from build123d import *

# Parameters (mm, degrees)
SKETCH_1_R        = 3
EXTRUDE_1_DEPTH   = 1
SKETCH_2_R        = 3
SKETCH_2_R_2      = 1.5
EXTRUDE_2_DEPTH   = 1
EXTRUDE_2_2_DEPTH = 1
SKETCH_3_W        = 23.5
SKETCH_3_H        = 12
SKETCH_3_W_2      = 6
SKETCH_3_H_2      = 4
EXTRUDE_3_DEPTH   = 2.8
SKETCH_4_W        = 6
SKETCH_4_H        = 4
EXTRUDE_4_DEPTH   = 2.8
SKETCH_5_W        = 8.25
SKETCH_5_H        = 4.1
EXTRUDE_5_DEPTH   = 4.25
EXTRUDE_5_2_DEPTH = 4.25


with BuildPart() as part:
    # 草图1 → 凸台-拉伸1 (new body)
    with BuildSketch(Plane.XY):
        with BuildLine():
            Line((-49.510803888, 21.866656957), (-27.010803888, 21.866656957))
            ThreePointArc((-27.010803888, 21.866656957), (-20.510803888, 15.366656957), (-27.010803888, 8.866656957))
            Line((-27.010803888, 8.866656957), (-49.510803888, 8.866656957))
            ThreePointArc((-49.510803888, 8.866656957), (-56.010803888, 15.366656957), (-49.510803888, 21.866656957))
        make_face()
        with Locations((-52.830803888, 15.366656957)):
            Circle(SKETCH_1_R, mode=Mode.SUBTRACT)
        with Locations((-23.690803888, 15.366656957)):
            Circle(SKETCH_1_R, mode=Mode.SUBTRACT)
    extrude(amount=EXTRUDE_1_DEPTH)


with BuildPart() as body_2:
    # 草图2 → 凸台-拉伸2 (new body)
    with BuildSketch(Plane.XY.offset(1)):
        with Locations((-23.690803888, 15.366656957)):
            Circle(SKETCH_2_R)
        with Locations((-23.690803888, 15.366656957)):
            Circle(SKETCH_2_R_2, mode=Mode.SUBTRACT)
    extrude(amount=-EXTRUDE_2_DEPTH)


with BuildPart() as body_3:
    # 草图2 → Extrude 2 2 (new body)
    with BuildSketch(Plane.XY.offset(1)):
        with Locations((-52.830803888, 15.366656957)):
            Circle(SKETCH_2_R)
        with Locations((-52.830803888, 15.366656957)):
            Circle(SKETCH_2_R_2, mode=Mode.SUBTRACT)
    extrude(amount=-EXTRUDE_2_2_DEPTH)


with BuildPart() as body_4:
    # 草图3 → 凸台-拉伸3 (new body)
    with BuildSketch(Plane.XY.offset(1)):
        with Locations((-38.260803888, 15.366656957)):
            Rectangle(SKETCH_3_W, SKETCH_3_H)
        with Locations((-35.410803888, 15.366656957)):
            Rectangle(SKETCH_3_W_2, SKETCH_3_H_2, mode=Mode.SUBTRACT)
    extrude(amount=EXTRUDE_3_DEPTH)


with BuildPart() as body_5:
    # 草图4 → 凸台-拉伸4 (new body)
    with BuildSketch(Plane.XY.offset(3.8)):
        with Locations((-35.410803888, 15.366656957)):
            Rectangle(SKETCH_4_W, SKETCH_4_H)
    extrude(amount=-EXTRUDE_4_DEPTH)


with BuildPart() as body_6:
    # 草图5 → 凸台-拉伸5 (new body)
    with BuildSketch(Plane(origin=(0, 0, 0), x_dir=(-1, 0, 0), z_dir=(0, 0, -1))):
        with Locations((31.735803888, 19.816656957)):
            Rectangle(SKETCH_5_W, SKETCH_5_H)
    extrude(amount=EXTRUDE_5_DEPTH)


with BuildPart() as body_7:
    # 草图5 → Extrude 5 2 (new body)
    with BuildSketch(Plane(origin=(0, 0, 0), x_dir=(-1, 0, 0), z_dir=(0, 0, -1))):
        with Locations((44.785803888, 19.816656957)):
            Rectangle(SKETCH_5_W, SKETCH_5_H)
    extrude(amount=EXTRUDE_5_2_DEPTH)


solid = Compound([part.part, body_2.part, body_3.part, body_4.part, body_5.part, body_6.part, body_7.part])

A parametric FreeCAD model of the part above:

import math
import FreeCAD as App
import Part
import Sketcher
from FreeCAD import Vector

doc = App.newDocument("Part")
body = doc.addObject("PartDesign::Body", "Body")

# Sketch on XY plane
sketch1 = body.newObject("Sketcher::SketchObject", "Sketch")
sketch1.AttachmentSupport = (doc.getObject("XY_Plane"), [""])
sketch1.MapMode = "FlatFace"
sketch1.addGeometry(Part.LineSegment(Vector(-27, 21.9, 0), Vector(-49.5, 21.9, 0)), False)
sketch1.addGeometry(Part.ArcOfCircle(Part.Circle(Vector(-49.5, 15.4, 0), Vector(0, 0, 1), 6.5), math.radians(90), math.radians(270)), False)
sketch1.addGeometry(Part.LineSegment(Vector(-49.5, 8.9, 0), Vector(-27, 8.9, 0)), False)
sketch1.addGeometry(Part.ArcOfCircle(Part.Circle(Vector(-27, 15.4, 0), Vector(0, 0, 1), 6.5), math.radians(-90), math.radians(90)), False)
sketch1.addGeometry(Part.Circle(Vector(-23.7, 15.4, 0), Vector(0, 0, 1), 3), False)
sketch1.addGeometry(Part.Circle(Vector(-52.8, 15.4, 0), Vector(0, 0, 1), 3), False)
sketch1.addConstraint(Sketcher.Constraint("Tangent", 0, 2, 1, 1))
sketch1.addConstraint(Sketcher.Constraint("Tangent", 1, 2, 2, 1))
sketch1.addConstraint(Sketcher.Constraint("Tangent", 2, 2, 3, 1))
sketch1.addConstraint(Sketcher.Constraint("Tangent", 3, 2, 0, 1))
sketch1.addConstraint(Sketcher.Constraint("Horizontal", 0))
sketch1.addConstraint(Sketcher.Constraint("Horizontal", 2))
sketch1.addConstraint(Sketcher.Constraint("Equal", 4, 5))
sketch1.addConstraint(Sketcher.Constraint("Horizontal", 3, 3, 4, 3))
sketch1.addConstraint(Sketcher.Constraint("Horizontal", 4, 3, 5, 3))
sketch1.addConstraint(Sketcher.Constraint("Diameter", 4, 6.0))
sketch1.addConstraint(Sketcher.Constraint("Radius", 1, 6.5))
sketch1.addConstraint(Sketcher.Constraint("DistanceX", 0, 2, 0, 1, 22.5))
sketch1.addConstraint(Sketcher.Constraint("DistanceX", 3, 3, 4, 3, 3.32))
sketch1.addConstraint(Sketcher.Constraint("DistanceX", 5, 3, 1, 3, 3.32))
sketch1.addConstraint(Sketcher.Constraint("DistanceX", 1, 3, -1, 1, 49.510804))
sketch1.addConstraint(Sketcher.Constraint("DistanceY", -1, 1, 1, 3, 15.366657))
pad1 = body.newObject("PartDesign::Pad", "Pad")
pad1.Profile = sketch1
pad1.Length = 1
body2 = doc.addObject("PartDesign::Body", "Body001")

# Sketch on XY plane
sketch2 = body2.newObject("Sketcher::SketchObject", "Sketch001")
sketch2.AttachmentSupport = (doc.getObject("XY_Plane001"), [""])
sketch2.MapMode = "FlatFace"
sketch2.AttachmentOffset = App.Placement(Vector(0, 0, 1), App.Rotation())
sketch2.addGeometry(Part.Circle(Vector(-23.7, 15.4, 0), Vector(0, 0, 1), 3), False)
sketch2.addGeometry(Part.Circle(Vector(-23.7, 15.4, 0), Vector(0, 0, 1), 1.5), False)
sketch2.addConstraint(Sketcher.Constraint("Coincident", 1, 3, 0, 3))
sketch2.addConstraint(Sketcher.Constraint("Diameter", 0, 6.0))
sketch2.addConstraint(Sketcher.Constraint("Diameter", 1, 3.0))
sketch2.addConstraint(Sketcher.Constraint("DistanceX", 0, 3, -1, 1, 23.690804))
sketch2.addConstraint(Sketcher.Constraint("DistanceY", -1, 1, 0, 3, 15.366657))
pad2 = body2.newObject("PartDesign::Pad", "Pad001")
pad2.Profile = sketch2
pad2.Length = 1
pad2.Reversed = True
body3 = doc.addObject("PartDesign::Body", "Body002")

# Sketch on XY plane
sketch3 = body3.newObject("Sketcher::SketchObject", "Sketch002")
sketch3.AttachmentSupport = (doc.getObject("XY_Plane002"), [""])
sketch3.MapMode = "FlatFace"
sketch3.AttachmentOffset = App.Placement(Vector(0, 0, 1), App.Rotation())
sketch3.addGeometry(Part.Circle(Vector(-52.8, 15.4, 0), Vector(0, 0, 1), 3), False)
sketch3.addGeometry(Part.Circle(Vector(-52.8, 15.4, 0), Vector(0, 0, 1), 1.5), False)
sketch3.addConstraint(Sketcher.Constraint("Coincident", 1, 3, 0, 3))
sketch3.addConstraint(Sketcher.Constraint("Diameter", 0, 6.0))
sketch3.addConstraint(Sketcher.Constraint("Diameter", 1, 3.0))
sketch3.addConstraint(Sketcher.Constraint("DistanceX", 0, 3, -1, 1, 52.830804))
sketch3.addConstraint(Sketcher.Constraint("DistanceY", -1, 1, 0, 3, 15.366657))
pad3 = body3.newObject("PartDesign::Pad", "Pad002")
pad3.Profile = sketch3
pad3.Length = 1
pad3.Reversed = True
body4 = doc.addObject("PartDesign::Body", "Body003")

# Sketch on XY plane
sketch4 = body4.newObject("Sketcher::SketchObject", "Sketch003")
sketch4.AttachmentSupport = (doc.getObject("XY_Plane003"), [""])
sketch4.MapMode = "FlatFace"
sketch4.AttachmentOffset = App.Placement(Vector(0, 0, 1), App.Rotation())
sketch4.addGeometry(Part.LineSegment(Vector(-50, 21.4, 0), Vector(-50, 9.4, 0)), False)
sketch4.addGeometry(Part.LineSegment(Vector(-50, 9.4, 0), Vector(-26.5, 9.4, 0)), False)
sketch4.addGeometry(Part.LineSegment(Vector(-26.5, 9.4, 0), Vector(-26.5, 21.4, 0)), False)
sketch4.addGeometry(Part.LineSegment(Vector(-26.5, 21.4, 0), Vector(-50, 21.4, 0)), False)
sketch4.addGeometry(Part.LineSegment(Vector(-32.4, 13.4, 0), Vector(-38.4, 13.4, 0)), False)
sketch4.addGeometry(Part.LineSegment(Vector(-38.4, 13.4, 0), Vector(-38.4, 17.4, 0)), False)
sketch4.addGeometry(Part.LineSegment(Vector(-38.4, 17.4, 0), Vector(-32.4, 17.4, 0)), False)
sketch4.addGeometry(Part.LineSegment(Vector(-32.4, 17.4, 0), Vector(-32.4, 13.4, 0)), False)
sketch4.addConstraint(Sketcher.Constraint("Coincident", 0, 2, 1, 1))
sketch4.addConstraint(Sketcher.Constraint("Coincident", 1, 2, 2, 1))
sketch4.addConstraint(Sketcher.Constraint("Coincident", 2, 2, 3, 1))
sketch4.addConstraint(Sketcher.Constraint("Coincident", 3, 2, 0, 1))
sketch4.addConstraint(Sketcher.Constraint("Coincident", 4, 2, 5, 1))
sketch4.addConstraint(Sketcher.Constraint("Coincident", 5, 2, 6, 1))
sketch4.addConstraint(Sketcher.Constraint("Coincident", 6, 2, 7, 1))
sketch4.addConstraint(Sketcher.Constraint("Coincident", 7, 2, 4, 1))
sketch4.addConstraint(Sketcher.Constraint("Vertical", 0))
sketch4.addConstraint(Sketcher.Constraint("Horizontal", 1))
sketch4.addConstraint(Sketcher.Constraint("Vertical", 2))
sketch4.addConstraint(Sketcher.Constraint("Horizontal", 3))
sketch4.addConstraint(Sketcher.Constraint("Horizontal", 4))
sketch4.addConstraint(Sketcher.Constraint("Vertical", 5))
sketch4.addConstraint(Sketcher.Constraint("Horizontal", 6))
sketch4.addConstraint(Sketcher.Constraint("Vertical", 7))
sketch4.addConstraint(Sketcher.Constraint("DistanceX", 4, 2, 4, 1, 6.0))
sketch4.addConstraint(Sketcher.Constraint("DistanceY", 0, 2, 0, 1, 12.0))
sketch4.addConstraint(Sketcher.Constraint("DistanceY", 5, 1, 5, 2, 4.0))
sketch4.addConstraint(Sketcher.Constraint("DistanceX", 1, 1, 1, 2, 23.5))
sketch4.addConstraint(Sketcher.Constraint("DistanceY", 0, 2, 4, 2, 4.0))
sketch4.addConstraint(Sketcher.Constraint("DistanceX", 0, 2, 4, 2, 11.6))
sketch4.addConstraint(Sketcher.Constraint("DistanceX", 0, 2, -1, 1, 50.010804))
sketch4.addConstraint(Sketcher.Constraint("DistanceY", -1, 1, 0, 2, 9.366657))
pad4 = body4.newObject("PartDesign::Pad", "Pad003")
pad4.Profile = sketch4
pad4.Length = 2.8
body5 = doc.addObject("PartDesign::Body", "Body004")

# Sketch on XY plane
sketch5 = body5.newObject("Sketcher::SketchObject", "Sketch004")
sketch5.AttachmentSupport = (doc.getObject("XY_Plane004"), [""])
sketch5.MapMode = "FlatFace"
sketch5.AttachmentOffset = App.Placement(Vector(0, 0, 3.8), App.Rotation())
sketch5.addGeometry(Part.LineSegment(Vector(-38.4, 17.4, 0), Vector(-38.4, 13.4, 0)), False)
sketch5.addGeometry(Part.LineSegment(Vector(-38.4, 13.4, 0), Vector(-32.4, 13.4, 0)), False)
sketch5.addGeometry(Part.LineSegment(Vector(-32.4, 13.4, 0), Vector(-32.4, 17.4, 0)), False)
sketch5.addGeometry(Part.LineSegment(Vector(-32.4, 17.4, 0), Vector(-38.4, 17.4, 0)), False)
sketch5.addConstraint(Sketcher.Constraint("Coincident", 0, 2, 1, 1))
sketch5.addConstraint(Sketcher.Constraint("Coincident", 1, 2, 2, 1))
sketch5.addConstraint(Sketcher.Constraint("Coincident", 2, 2, 3, 1))
sketch5.addConstraint(Sketcher.Constraint("Coincident", 3, 2, 0, 1))
sketch5.addConstraint(Sketcher.Constraint("Vertical", 0))
sketch5.addConstraint(Sketcher.Constraint("Horizontal", 1))
sketch5.addConstraint(Sketcher.Constraint("Vertical", 2))
sketch5.addConstraint(Sketcher.Constraint("Horizontal", 3))
sketch5.addConstraint(Sketcher.Constraint("DistanceX", 1, 1, 1, 2, 6.0))
sketch5.addConstraint(Sketcher.Constraint("DistanceY", 0, 2, 0, 1, 4.0))
sketch5.addConstraint(Sketcher.Constraint("DistanceX", 0, 2, -1, 1, 38.410804))
sketch5.addConstraint(Sketcher.Constraint("DistanceY", -1, 1, 0, 2, 13.366657))
pad5 = body5.newObject("PartDesign::Pad", "Pad004")
pad5.Profile = sketch5
pad5.Length = 2.8
pad5.Reversed = True
body6 = doc.addObject("PartDesign::Body", "Body005")

# Sketch on XY plane
sketch6 = body6.newObject("Sketcher::SketchObject", "Sketch005")
sketch6.AttachmentSupport = (doc.getObject("XY_Plane005"), [""])
sketch6.MapMode = "FlatFace"
sketch6.addGeometry(Part.LineSegment(Vector(-27.6, 21.9, 0), Vector(-27.6, 17.8, 0)), False)
sketch6.addGeometry(Part.LineSegment(Vector(-27.6, 17.8, 0), Vector(-35.9, 17.8, 0)), False)
sketch6.addGeometry(Part.LineSegment(Vector(-35.9, 17.8, 0), Vector(-35.9, 21.9, 0)), False)
sketch6.addGeometry(Part.LineSegment(Vector(-35.9, 21.9, 0), Vector(-27.6, 21.9, 0)), False)
sketch6.addConstraint(Sketcher.Constraint("Coincident", 0, 2, 1, 1))
sketch6.addConstraint(Sketcher.Constraint("Coincident", 1, 2, 2, 1))
sketch6.addConstraint(Sketcher.Constraint("Coincident", 2, 2, 3, 1))
sketch6.addConstraint(Sketcher.Constraint("Coincident", 3, 2, 0, 1))
sketch6.addConstraint(Sketcher.Constraint("Vertical", 0))
sketch6.addConstraint(Sketcher.Constraint("Horizontal", 1))
sketch6.addConstraint(Sketcher.Constraint("Vertical", 2))
sketch6.addConstraint(Sketcher.Constraint("Horizontal", 3))
sketch6.addConstraint(Sketcher.Constraint("DistanceY", 0, 2, 0, 1, 4.1))
sketch6.addConstraint(Sketcher.Constraint("DistanceX", 1, 2, 1, 1, 8.25))
sketch6.addConstraint(Sketcher.Constraint("DistanceX", 0, 2, -1, 1, 27.610804))
sketch6.addConstraint(Sketcher.Constraint("DistanceY", -1, 1, 0, 2, 17.766657))
pad6 = body6.newObject("PartDesign::Pad", "Pad005")
pad6.Profile = sketch6
pad6.Length = 4.25
pad6.Reversed = True
body7 = doc.addObject("PartDesign::Body", "Body006")

# Sketch on XY plane
sketch7 = body7.newObject("Sketcher::SketchObject", "Sketch006")
sketch7.AttachmentSupport = (doc.getObject("XY_Plane006"), [""])
sketch7.MapMode = "FlatFace"
sketch7.addGeometry(Part.LineSegment(Vector(-40.7, 21.9, 0), Vector(-40.7, 17.8, 0)), False)
sketch7.addGeometry(Part.LineSegment(Vector(-40.7, 17.8, 0), Vector(-48.9, 17.8, 0)), False)
sketch7.addGeometry(Part.LineSegment(Vector(-48.9, 17.8, 0), Vector(-48.9, 21.9, 0)), False)
sketch7.addGeometry(Part.LineSegment(Vector(-48.9, 21.9, 0), Vector(-40.7, 21.9, 0)), False)
sketch7.addConstraint(Sketcher.Constraint("Coincident", 0, 2, 1, 1))
sketch7.addConstraint(Sketcher.Constraint("Coincident", 1, 2, 2, 1))
sketch7.addConstraint(Sketcher.Constraint("Coincident", 2, 2, 3, 1))
sketch7.addConstraint(Sketcher.Constraint("Coincident", 3, 2, 0, 1))
sketch7.addConstraint(Sketcher.Constraint("Vertical", 0))
sketch7.addConstraint(Sketcher.Constraint("Horizontal", 1))
sketch7.addConstraint(Sketcher.Constraint("Vertical", 2))
sketch7.addConstraint(Sketcher.Constraint("Horizontal", 3))
sketch7.addConstraint(Sketcher.Constraint("DistanceY", 0, 2, 0, 1, 4.1))
sketch7.addConstraint(Sketcher.Constraint("DistanceX", 1, 2, 1, 1, 8.25))
sketch7.addConstraint(Sketcher.Constraint("DistanceX", 0, 2, -1, 1, 40.660804))
sketch7.addConstraint(Sketcher.Constraint("DistanceY", -1, 1, 0, 2, 17.766657))
pad7 = body7.newObject("PartDesign::Pad", "Pad006")
pad7.Profile = sketch7
pad7.Length = 4.25
pad7.Reversed = True

doc.recompute()
